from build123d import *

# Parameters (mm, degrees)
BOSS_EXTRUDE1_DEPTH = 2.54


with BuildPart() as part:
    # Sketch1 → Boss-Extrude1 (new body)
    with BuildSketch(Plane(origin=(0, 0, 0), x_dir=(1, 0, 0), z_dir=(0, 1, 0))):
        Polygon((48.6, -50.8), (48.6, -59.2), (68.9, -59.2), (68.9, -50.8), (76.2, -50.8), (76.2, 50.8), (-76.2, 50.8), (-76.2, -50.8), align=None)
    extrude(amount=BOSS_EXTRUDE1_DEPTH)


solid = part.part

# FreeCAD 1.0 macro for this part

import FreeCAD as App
import Part
import Sketcher
Q = App.Units.Quantity


def add_polygon(sketch, points):
    """Adds a closed chain of lines whose ends are joined by coincident constraints."""
    first, n = sketch.GeometryCount, len(points)
    for a, b in zip(points, points[1:] + points[:1]):
        sketch.addGeometry(Part.LineSegment(App.Vector(*a, 0), App.Vector(*b, 0)), False)
    for i in range(n):
        sketch.addConstraint(Sketcher.Constraint("Coincident", first + i, 2, first + (i + 1) % n, 1))

doc = App.newDocument("Part")
params = doc.addObject("Spreadsheet::Sheet", "Params")
for row, (alias, value) in enumerate([
    ("sketch1_width", "20.3 mm"),
    ("sketch1_width2", "7.3 mm"),
    ("sketch1_width3", "152.4 mm"),
    ("sketch1_height", "8.4 mm"),
    ("sketch1_height2", "101.6 mm"),
    ("pad1_length", "2.54 mm"),
], start=1):
    params.set(f"A{row}", alias)
    params.set(f"B{row}", "=" + value)
    params.setAlias(f"B{row}", alias)

body = doc.addObject("PartDesign::Body", "Body")

# Sketch on XZ plane
sketch1 = body.newObject("Sketcher::SketchObject", "Sketch")
sketch1.AttachmentSupport = (doc.getObject("XZ_Plane"), [""])
sketch1.MapMode = "FlatFace"
add_polygon(sketch1, [(49, 51), (49, 59), (69, 59), (69, 51), (76, 51), (76, -51), (-76, -51), (-76, 51)])  # lines 0-7
sketch1.addConstraint([
    Sketcher.Constraint("Vertical", 0),
    Sketcher.Constraint("Horizontal", 1),
    Sketcher.Constraint("Vertical", 2),
    Sketcher.Constraint("Horizontal", 3),
    Sketcher.Constraint("Vertical", 4),
    Sketcher.Constraint("Horizontal", 5),
    Sketcher.Constraint("Vertical", 6),
    Sketcher.Constraint("Horizontal", 7),
    Sketcher.Constraint("Symmetric", 3, 2, 5, 2, -1, 1),
    Sketcher.Constraint("Horizontal", 3, 2, 6, 2),
    Sketcher.Constraint("DistanceX", 1, 1, 1, 2, Q("20.3 mm")),
    Sketcher.Constraint("DistanceX", 3, 1, 3, 2, Q("7.3 mm")),
    Sketcher.Constraint("DistanceX", 5, 2, 5, 1, Q("152.4 mm")),
    Sketcher.Constraint("DistanceY", 0, 1, 0, 2, Q("8.4 mm")),
    Sketcher.Constraint("DistanceY", 4, 2, 4, 1, Q("101.6 mm")),
])
sketch1.setExpression("Constraints[18]", "Params.sketch1_width")
sketch1.setExpression("Constraints[19]", "Params.sketch1_width2")
sketch1.setExpression("Constraints[20]", "Params.sketch1_width3")
sketch1.setExpression("Constraints[21]", "Params.sketch1_height")
sketch1.setExpression("Constraints[22]", "Params.sketch1_height2")
pad1 = body.newObject("PartDesign::Pad", "Pad")
pad1.Profile = sketch1
pad1.setExpression("Length", "Params.pad1_length")
pad1.Reversed = True

doc.recompute()
